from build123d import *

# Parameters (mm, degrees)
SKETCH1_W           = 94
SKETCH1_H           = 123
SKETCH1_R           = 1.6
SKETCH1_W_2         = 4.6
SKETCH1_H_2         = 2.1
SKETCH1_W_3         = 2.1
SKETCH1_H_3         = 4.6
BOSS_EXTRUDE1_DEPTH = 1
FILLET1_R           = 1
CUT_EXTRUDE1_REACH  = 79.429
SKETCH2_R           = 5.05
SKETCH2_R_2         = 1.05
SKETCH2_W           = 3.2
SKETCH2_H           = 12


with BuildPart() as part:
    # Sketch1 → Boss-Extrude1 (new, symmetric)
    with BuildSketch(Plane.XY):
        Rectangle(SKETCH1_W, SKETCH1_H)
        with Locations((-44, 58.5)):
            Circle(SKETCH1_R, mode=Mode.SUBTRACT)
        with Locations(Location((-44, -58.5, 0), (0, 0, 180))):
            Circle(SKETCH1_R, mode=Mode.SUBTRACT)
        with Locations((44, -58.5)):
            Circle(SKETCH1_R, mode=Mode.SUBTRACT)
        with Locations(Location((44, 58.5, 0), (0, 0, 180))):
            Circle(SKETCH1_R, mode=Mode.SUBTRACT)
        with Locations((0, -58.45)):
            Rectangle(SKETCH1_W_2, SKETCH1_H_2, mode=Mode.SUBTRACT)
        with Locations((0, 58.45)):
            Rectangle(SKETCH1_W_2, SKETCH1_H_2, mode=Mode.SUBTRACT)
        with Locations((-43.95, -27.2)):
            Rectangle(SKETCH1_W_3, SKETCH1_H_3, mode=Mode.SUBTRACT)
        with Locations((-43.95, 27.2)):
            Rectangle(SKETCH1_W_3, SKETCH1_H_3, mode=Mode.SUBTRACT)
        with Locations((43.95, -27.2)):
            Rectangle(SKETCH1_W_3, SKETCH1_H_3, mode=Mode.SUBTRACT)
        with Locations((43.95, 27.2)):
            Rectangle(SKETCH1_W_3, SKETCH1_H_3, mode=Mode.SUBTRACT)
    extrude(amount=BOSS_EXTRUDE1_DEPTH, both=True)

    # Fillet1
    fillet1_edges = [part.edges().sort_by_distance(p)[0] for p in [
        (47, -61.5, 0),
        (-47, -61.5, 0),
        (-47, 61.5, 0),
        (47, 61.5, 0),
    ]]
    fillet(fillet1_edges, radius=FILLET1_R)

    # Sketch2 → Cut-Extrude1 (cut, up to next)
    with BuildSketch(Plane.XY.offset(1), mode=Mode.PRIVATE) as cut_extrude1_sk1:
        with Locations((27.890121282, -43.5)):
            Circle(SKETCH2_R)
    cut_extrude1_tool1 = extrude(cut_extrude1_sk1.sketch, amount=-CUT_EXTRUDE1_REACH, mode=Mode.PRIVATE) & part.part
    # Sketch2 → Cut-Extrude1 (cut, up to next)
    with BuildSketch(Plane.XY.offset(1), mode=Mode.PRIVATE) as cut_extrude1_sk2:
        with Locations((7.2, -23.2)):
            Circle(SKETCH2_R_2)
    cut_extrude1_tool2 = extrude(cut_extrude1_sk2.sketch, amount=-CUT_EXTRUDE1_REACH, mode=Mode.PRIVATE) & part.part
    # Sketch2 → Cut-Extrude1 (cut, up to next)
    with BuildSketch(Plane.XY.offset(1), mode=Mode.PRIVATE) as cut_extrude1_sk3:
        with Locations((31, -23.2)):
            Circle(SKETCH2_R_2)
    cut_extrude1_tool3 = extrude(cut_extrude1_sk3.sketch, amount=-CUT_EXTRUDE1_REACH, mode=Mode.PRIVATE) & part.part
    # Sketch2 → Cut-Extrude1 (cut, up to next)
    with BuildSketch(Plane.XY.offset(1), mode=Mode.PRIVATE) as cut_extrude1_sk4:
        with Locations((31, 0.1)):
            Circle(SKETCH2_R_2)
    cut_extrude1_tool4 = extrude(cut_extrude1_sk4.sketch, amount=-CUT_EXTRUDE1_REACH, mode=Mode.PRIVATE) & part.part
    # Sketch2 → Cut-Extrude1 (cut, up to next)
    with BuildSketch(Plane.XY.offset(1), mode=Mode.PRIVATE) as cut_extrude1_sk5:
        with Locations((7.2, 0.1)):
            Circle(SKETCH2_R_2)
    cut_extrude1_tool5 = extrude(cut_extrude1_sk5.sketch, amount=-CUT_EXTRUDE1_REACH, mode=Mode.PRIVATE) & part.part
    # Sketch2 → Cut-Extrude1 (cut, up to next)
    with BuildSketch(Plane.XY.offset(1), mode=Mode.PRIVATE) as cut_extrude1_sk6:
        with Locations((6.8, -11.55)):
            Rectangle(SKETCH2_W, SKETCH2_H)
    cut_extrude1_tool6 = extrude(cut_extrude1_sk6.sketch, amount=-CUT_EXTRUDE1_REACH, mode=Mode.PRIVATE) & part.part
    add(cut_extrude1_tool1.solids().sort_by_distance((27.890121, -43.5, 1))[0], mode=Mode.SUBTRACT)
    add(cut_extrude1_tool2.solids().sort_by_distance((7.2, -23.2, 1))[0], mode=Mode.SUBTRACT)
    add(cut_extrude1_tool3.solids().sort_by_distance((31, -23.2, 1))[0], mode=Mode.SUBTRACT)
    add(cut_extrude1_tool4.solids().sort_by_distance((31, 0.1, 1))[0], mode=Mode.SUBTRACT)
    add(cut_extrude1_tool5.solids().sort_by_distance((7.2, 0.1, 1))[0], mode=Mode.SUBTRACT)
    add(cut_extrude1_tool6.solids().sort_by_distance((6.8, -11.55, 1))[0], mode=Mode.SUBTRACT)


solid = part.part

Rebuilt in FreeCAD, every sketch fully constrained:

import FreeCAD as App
import Part
import Sketcher
Q = App.Units.Quantity


def edges_at(feature, points):
    """Names of the edges that pass closest to the given points."""
    edges = feature.Shape.Edges
    near = lambda p: min(range(len(edges)), key=lambda i: edges[i].distToShape(Part.Vertex(*p))[0])
    return sorted({f"Edge{near(p) + 1}" for p in points})

doc = App.newDocument("Part")
params = doc.addObject("Spreadsheet::Sheet", "Params")
for row, (alias, value) in enumerate([
    ("sketch1_diameter", "3.2 mm"),
    ("sketch1_width", "94 mm"),
    ("sketch1_height", "123 mm"),
    ("sketch1_width2", "2.1 mm"),
    ("sketch1_width3", "4.6 mm"),
    ("pad1_length", "2 mm"),
    ("fillet_radius", "1 mm"),
    ("sketch2_diameter", "10.1 mm"),
    ("sketch3_diameter", "2.1 mm"),
    ("sketch4_diameter", "2.1 mm"),
    ("sketch5_diameter", "2.1 mm"),
    ("sketch6_diameter", "2.1 mm"),
    ("sketch7_height", "12 mm"),
    ("sketch7_width", "3.2 mm"),
], start=1):
    params.set(f"A{row}", alias)
    params.set(f"B{row}", "=" + value)
    params.setAlias(f"B{row}", alias)

body = doc.addObject("PartDesign::Body", "Body")

# Sketch on XY plane
sketch1 = body.newObject("Sketcher::SketchObject", "Sketch")
sketch1.AttachmentSupport = (doc.getObject("XY_Plane"), [""])
sketch1.MapMode = "FlatFace"
sketch1.addGeometry([
    Part.LineSegment(App.Vector(-47, 61.5, 0), App.Vector(-47, -61.5, 0)),  # 0
    Part.LineSegment(App.Vector(-47, -61.5, 0), App.Vector(47, -61.5, 0)),  # 1
    Part.LineSegment(App.Vector(47, -61.5, 0), App.Vector(47, 61.5, 0)),  # 2
    Part.LineSegment(App.Vector(47, 61.5, 0), App.Vector(-47, 61.5, 0)),  # 3
    Part.Circle(App.Vector(-44, -58.5, 0), App.Vector(0, 0, 1), 1.6),  # 4
    Part.LineSegment(App.Vector(-42.9, -29.5, 0), App.Vector(-45, -29.5, 0)),  # 5
    Part.LineSegment(App.Vector(-45, -29.5, 0), App.Vector(-45, -24.9, 0)),  # 6
    Part.LineSegment(App.Vector(-45, -24.9, 0), App.Vector(-42.9, -24.9, 0)),  # 7
    Part.LineSegment(App.Vector(-42.9, -24.9, 0), App.Vector(-42.9, -29.5, 0)),  # 8
    Part.LineSegment(App.Vector(2.3, -59.5, 0), App.Vector(-2.3, -59.5, 0)),  # 9
    Part.LineSegment(App.Vector(-2.3, -59.5, 0), App.Vector(-2.3, -57.4, 0)),  # 10
    Part.LineSegment(App.Vector(-2.3, -57.4, 0), App.Vector(2.3, -57.4, 0)),  # 11
    Part.LineSegment(App.Vector(2.3, -57.4, 0), App.Vector(2.3, -59.5, 0)),  # 12
    Part.Circle(App.Vector(44, -58.5, 0), App.Vector(0, 0, 1), 1.6),  # 13
    Part.LineSegment(App.Vector(45, -29.5, 0), App.Vector(42.9, -29.5, 0)),  # 14
    Part.LineSegment(App.Vector(42.9, -29.5, 0), App.Vector(42.9, -24.9, 0)),  # 15
    Part.LineSegment(App.Vector(42.9, -24.9, 0), App.Vector(45, -24.9, 0)),  # 16
    Part.LineSegment(App.Vector(45, -24.9, 0), App.Vector(45, -29.5, 0)),  # 17
    Part.LineSegment(App.Vector(-42.9, 24.9, 0), App.Vector(-45, 24.9, 0)),  # 18
    Part.LineSegment(App.Vector(-45, 24.9, 0), App.Vector(-45, 29.5, 0)),  # 19
    Part.LineSegment(App.Vector(-45, 29.5, 0), App.Vector(-42.9, 29.5, 0)),  # 20
    Part.LineSegment(App.Vector(-42.9, 29.5, 0), App.Vector(-42.9, 24.9, 0)),  # 21
    Part.Circle(App.Vector(-44, 58.5, 0), App.Vector(0, 0, 1), 1.6),  # 22
    Part.LineSegment(App.Vector(45, 24.9, 0), App.Vector(42.9, 24.9, 0)),  # 23
    Part.LineSegment(App.Vector(42.9, 24.9, 0), App.Vector(42.9, 29.5, 0)),  # 24
    Part.LineSegment(App.Vector(42.9, 29.5, 0), App.Vector(45, 29.5, 0)),  # 25
    Part.LineSegment(App.Vector(45, 29.5, 0), App.Vector(45, 24.9, 0)),  # 26
    Part.LineSegment(App.Vector(2.3, 57.4, 0), App.Vector(-2.3, 57.4, 0)),  # 27
    Part.LineSegment(App.Vector(-2.3, 57.4, 0), App.Vector(-2.3, 59.5, 0)),  # 28
    Part.LineSegment(App.Vector(-2.3, 59.5, 0), App.Vector(2.3, 59.5, 0)),  # 29
    Part.LineSegment(App.Vector(2.3, 59.5, 0), App.Vector(2.3, 57.4, 0)),  # 30
    Part.Circle(App.Vector(44, 58.5, 0), App.Vector(0, 0, 1), 1.6),  # 31
], False)
sketch1.addConstraint([
    Sketcher.Constraint("Coincident", 0, 2, 1, 1),
    Sketcher.Constraint("Coincident", 1, 2, 2, 1),
    Sketcher.Constraint("Coincident", 2, 2, 3, 1),
    Sketcher.Constraint("Coincident", 3, 2, 0, 1),
    Sketcher.Constraint("Coincident", 5, 2, 6, 1),
    Sketcher.Constraint("Coincident", 6, 2, 7, 1),
    Sketcher.Constraint("Coincident", 7, 2, 8, 1),
    Sketcher.Constraint("Coincident", 8, 2, 5, 1),
    Sketcher.Constraint("Coincident", 9, 2, 10, 1),
    Sketcher.Constraint("Coincident", 10, 2, 11, 1),
    Sketcher.Constraint("Coincident", 11, 2, 12, 1),
    Sketcher.Constraint("Coincident", 12, 2, 9, 1),
    Sketcher.Constraint("Coincident", 14, 2, 15, 1),
    Sketcher.Constraint("Coincident", 15, 2, 16, 1),
    Sketcher.Constraint("Coincident", 16, 2, 17, 1),
    Sketcher.Constraint("Coincident", 17, 2, 14, 1),
    Sketcher.Constraint("Coincident", 18, 2, 19, 1),
    Sketcher.Constraint("Coincident", 19, 2, 20, 1),
    Sketcher.Constraint("Coincident", 20, 2, 21, 1),
    Sketcher.Constraint("Coincident", 21, 2, 18, 1),
    Sketcher.Constraint("Coincident", 23, 2, 24, 1),
    Sketcher.Constraint("Coincident", 24, 2, 25, 1),
    Sketcher.Constraint("Coincident", 25, 2, 26, 1),
    Sketcher.Constraint("Coincident", 26, 2, 23, 1),
    Sketcher.Constraint("Coincident", 27, 2, 28, 1),
    Sketcher.Constraint("Coincident", 28, 2, 29, 1),
    Sketcher.Constraint("Coincident", 29, 2, 30, 1),
    Sketcher.Constraint("Coincident", 30, 2, 27, 1),
    Sketcher.Constraint("Vertical", 0),
    Sketcher.Constraint("Horizontal", 1),
    Sketcher.Constraint("Vertical", 2),
    Sketcher.Constraint("Horizontal", 3),
    Sketcher.Constraint("Horizontal", 5),
    Sketcher.Constraint("Vertical", 6),
    Sketcher.Constraint("Horizontal", 7),
    Sketcher.Constraint("Vertical", 8),
    Sketcher.Constraint("Horizontal", 9),
    Sketcher.Constraint("Vertical", 10),
    Sketcher.Constraint("Horizontal", 11),
    Sketcher.Constraint("Vertical", 12),
    Sketcher.Constraint("Horizontal", 14),
    Sketcher.Constraint("Vertical", 15),
    Sketcher.Constraint("Horizontal", 16),
    Sketcher.Constraint("Vertical", 17),
    Sketcher.Constraint("Horizontal", 18),
    Sketcher.Constraint("Vertical", 19),
    Sketcher.Constraint("Horizontal", 20),
    Sketcher.Constraint("Vertical", 21),
    Sketcher.Constraint("Horizontal", 23),
    Sketcher.Constraint("Vertical", 24),
    Sketcher.Constraint("Horizontal", 25),
    Sketcher.Constraint("Vertical", 26),
    Sketcher.Constraint("Horizontal", 27),
    Sketcher.Constraint("Vertical", 28),
    Sketcher.Constraint("Horizontal", 29),
    Sketcher.Constraint("Vertical", 30),
    Sketcher.Constraint("Equal", 4, 13),
    Sketcher.Constraint("Equal", 13, 22),
    Sketcher.Constraint("Equal", 22, 31),
    Sketcher.Constraint("Symmetric", 13, 3, 22, 3, -1, 1),
    Sketcher.Constraint("Symmetric", 4, 3, 31, 3, -1, 1),
    Sketcher.Constraint("Symmetric", 0, 2, 2, 2, -1, 1),
    Sketcher.Constraint("Symmetric", 16, 2, 18, 2, -1, 1),
    Sketcher.Constraint("Symmetric", 14, 2, 20, 2, -1, 1),
    Sketcher.Constraint("Symmetric", 7, 2, 23, 2, -1, 1),
    Sketcher.Constraint("Symmetric", 5, 2, 25, 2, -1, 1),
    Sketcher.Constraint("Symmetric", 11, 2, 27, 2, -1, 1),
    Sketcher.Constraint("Symmetric", 9, 2, 29, 2, -1, 1),
    Sketcher.Constraint("Symmetric", 4, 3, 13, 3, -2),
    Sketcher.Constraint("Symmetric", 8, 2, 14, 2, -2),
    Sketcher.Constraint("Symmetric", 6, 2, 16, 2, -2),
    Sketcher.Constraint("Vertical", 10, 2, 27, 2),
    Sketcher.Constraint("Equal", 29, 6),
    Sketcher.Constraint("Equal", 25, 10),
    Sketcher.Constraint("Diameter", 4, Q("3.2 mm")),
    Sketcher.Constraint("DistanceX", 1, 1, 1, 2, Q("94 mm")),
    Sketcher.Constraint("DistanceY", 0, 2, 0, 1, Q("123 mm")),
    Sketcher.Constraint("DistanceX", 5, 2, 5, 1, Q("2.1 mm")),
    Sketcher.Constraint("DistanceX", 9, 2, 9, 1, Q("4.6 mm")),
    Sketcher.Constraint("DistanceX", 4, 3, -1, 1, Q("44 mm")),
    Sketcher.Constraint("DistanceX", 5, 2, -1, 1, Q("45 mm")),
    Sketcher.Constraint("DistanceY", 4, 3, 22, 3, Q("117 mm")),
    Sketcher.Constraint("DistanceY", 4, 3, 5, 2, Q("29 mm")),
    Sketcher.Constraint("DistanceY", 9, 2, 4, 3, Q("1 mm")),
])
sketch1.setExpression("Constraints[74]", "Params.sketch1_diameter")
sketch1.setExpression("Constraints[75]", "Params.sketch1_width")
sketch1.setExpression("Constraints[76]", "Params.sketch1_height")
sketch1.setExpression("Constraints[77]", "Params.sketch1_width2")
sketch1.setExpression("Constraints[78]", "Params.sketch1_width3")
pad1 = body.newObject("PartDesign::Pad", "Pad")
pad1.Profile = sketch1
pad1.setExpression("Length", "Params.pad1_length")
pad1.Midplane = True
doc.recompute()

fillet = body.newObject("PartDesign::Fillet", "Fillet")
fillet.Base = (pad1, edges_at(pad1, [
    (47, -61.5, 0),
    (-47, -61.5, 0),
    (-47, 61.5, 0),
    (47, 61.5, 0),
]))
fillet.setExpression("Radius", "Params.fillet_radius")

# Sketch on XY plane
sketch2 = body.newObject("Sketcher::SketchObject", "Sketch001")
sketch2.AttachmentSupport = (doc.getObject("XY_Plane"), [""])
sketch2.MapMode = "FlatFace"
sketch2.AttachmentOffset = App.Placement(App.Vector(0, 0, 1), App.Rotation())
sketch2.addGeometry(Part.Circle(App.Vector(28, -44, 0), App.Vector(0, 0, 1), 5), False)
sketch2.addConstraint([
    Sketcher.Constraint("Diameter", 0, Q("10.1 mm")),
    Sketcher.Constraint("DistanceY", 0, 3, -1, 1, Q("43.5 mm")),
    Sketcher.Constraint("DistanceX", -1, 1, 0, 3, Q("27.890121 mm")),
])
sketch2.setExpression("Constraints[0]", "Params.sketch2_diameter")
pocket1 = body.newObject("PartDesign::Pocket", "Pocket")
pocket1.Profile = sketch2
pocket1.Type = "UpToFirst"

# Sketch on XY plane
sketch3 = body.newObject("Sketcher::SketchObject", "Sketch002")
sketch3.AttachmentSupport = (doc.getObject("XY_Plane"), [""])
sketch3.MapMode = "FlatFace"
sketch3.AttachmentOffset = App.Placement(App.Vector(0, 0, 1), App.Rotation())
sketch3.addGeometry(Part.Circle(App.Vector(7.2, -23.2, 0), App.Vector(0, 0, 1), 1.1), False)
sketch3.addConstraint([
    Sketcher.Constraint("Diameter", 0, Q("2.1 mm")),
    Sketcher.Constraint("DistanceX", -1, 1, 0, 3, Q("7.2 mm")),
    Sketcher.Constraint("DistanceY", 0, 3, -1, 1, Q("23.2 mm")),
])
sketch3.setExpression("Constraints[0]", "Params.sketch3_diameter")
pocket2 = body.newObject("PartDesign::Pocket", "Pocket001")
pocket2.Profile = sketch3
pocket2.Type = "UpToFirst"

# Sketch on XY plane
sketch4 = body.newObject("Sketcher::SketchObject", "Sketch003")
sketch4.AttachmentSupport = (doc.getObject("XY_Plane"), [""])
sketch4.MapMode = "FlatFace"
sketch4.AttachmentOffset = App.Placement(App.Vector(0, 0, 1), App.Rotation())
sketch4.addGeometry(Part.Circle(App.Vector(31, -23.2, 0), App.Vector(0, 0, 1), 1.1), False)
sketch4.addConstraint([
    Sketcher.Constraint("Diameter", 0, Q("2.1 mm")),
    Sketcher.Constraint("DistanceX", -1, 1, 0, 3, Q("31 mm")),
    Sketcher.Constraint("DistanceY", 0, 3, -1, 1, Q("23.2 mm")),
])
sketch4.setExpression("Constraints[0]", "Params.sketch4_diameter")
pocket3 = body.newObject("PartDesign::Pocket", "Pocket002")
pocket3.Profile = sketch4
pocket3.Type = "UpToFirst"

# Sketch on XY plane
sketch5 = body.newObject("Sketcher::SketchObject", "Sketch004")
sketch5.AttachmentSupport = (doc.getObject("XY_Plane"), [""])
sketch5.MapMode = "FlatFace"
sketch5.AttachmentOffset = App.Placement(App.Vector(0, 0, 1), App.Rotation())
sketch5.addGeometry(Part.Circle(App.Vector(31, 0.1, 0), App.Vector(0, 0, 1), 1.1), False)
sketch5.addConstraint([
    Sketcher.Constraint("Diameter", 0, Q("2.1 mm")),
    Sketcher.Constraint("DistanceX", -1, 1, 0, 3, Q("31 mm")),
    Sketcher.Constraint("DistanceY", -1, 1, 0, 3, Q("0.1 mm")),
])
sketch5.setExpression("Constraints[0]", "Params.sketch5_diameter")
pocket4 = body.newObject("PartDesign::Pocket", "Pocket003")
pocket4.Profile = sketch5
pocket4.Type = "UpToFirst"

# Sketch on XY plane
sketch6 = body.newObject("Sketcher::SketchObject", "Sketch005")
sketch6.AttachmentSupport = (doc.getObject("XY_Plane"), [""])
sketch6.MapMode = "FlatFace"
sketch6.AttachmentOffset = App.Placement(App.Vector(0, 0, 1), App.Rotation())
sketch6.addGeometry(Part.Circle(App.Vector(7.2, 0.1, 0), App.Vector(0, 0, 1), 1.1), False)
sketch6.addConstraint([
    Sketcher.Constraint("Diameter", 0, Q("2.1 mm")),
    Sketcher.Constraint("DistanceX", -1, 1, 0, 3, Q("7.2 mm")),
    Sketcher.Constraint("DistanceY", -1, 1, 0, 3, Q("0.1 mm")),
])
sketch6.setExpression("Constraints[0]", "Params.sketch6_diameter")
pocket5 = body.newObject("PartDesign::Pocket", "Pocket004")
pocket5.Profile = sketch6
pocket5.Type = "UpToFirst"

# Sketch on XY plane
sketch7 = body.newObject("Sketcher::SketchObject", "Sketch006")
sketch7.AttachmentSupport = (doc.getObject("XY_Plane"), [""])
sketch7.MapMode = "FlatFace"
sketch7.AttachmentOffset = App.Placement(App.Vector(0, 0, 1), App.Rotation())
sketch7.addGeometry([
    Part.LineSegment(App.Vector(5.2, -5.5, 0), App.Vector(5.2, -17.6, 0)),
    Part.LineSegment(App.Vector(5.2, -17.6, 0), App.Vector(8.4, -17.6, 0)),
    Part.LineSegment(App.Vector(8.4, -17.6, 0), App.Vector(8.4, -5.5, 0)),
    Part.LineSegment(App.Vector(8.4, -5.5, 0), App.Vector(5.2, -5.5, 0)),
], False)
sketch7.addConstraint([
    Sketcher.Constraint("Coincident", 0, 2, 1, 1),
    Sketcher.Constraint("Coincident", 1, 2, 2, 1),
    Sketcher.Constraint("Coincident", 2, 2, 3, 1),
    Sketcher.Constraint("Coincident", 3, 2, 0, 1),
    Sketcher.Constraint("Vertical", 0),
    Sketcher.Constraint("Horizontal", 1),
    Sketcher.Constraint("Vertical", 2),
    Sketcher.Constraint("Horizontal", 3),
    Sketcher.Constraint("DistanceY", 0, 2, 0, 1, Q("12 mm")),
    Sketcher.Constraint("DistanceX", 1, 1, 1, 2, Q("3.2 mm")),
    Sketcher.Constraint("DistanceX", -1, 1, 0, 2, Q("5.2 mm")),
    Sketcher.Constraint("DistanceY", 0, 2, -1, 1, Q("17.55 mm")),
])
sketch7.setExpression("Constraints[8]", "Params.sketch7_height")
sketch7.setExpression("Constraints[9]", "Params.sketch7_width")
pocket6 = body.newObject("PartDesign::Pocket", "Pocket005")
pocket6.Profile = sketch7
pocket6.Type = "UpToFirst"

doc.recompute()
